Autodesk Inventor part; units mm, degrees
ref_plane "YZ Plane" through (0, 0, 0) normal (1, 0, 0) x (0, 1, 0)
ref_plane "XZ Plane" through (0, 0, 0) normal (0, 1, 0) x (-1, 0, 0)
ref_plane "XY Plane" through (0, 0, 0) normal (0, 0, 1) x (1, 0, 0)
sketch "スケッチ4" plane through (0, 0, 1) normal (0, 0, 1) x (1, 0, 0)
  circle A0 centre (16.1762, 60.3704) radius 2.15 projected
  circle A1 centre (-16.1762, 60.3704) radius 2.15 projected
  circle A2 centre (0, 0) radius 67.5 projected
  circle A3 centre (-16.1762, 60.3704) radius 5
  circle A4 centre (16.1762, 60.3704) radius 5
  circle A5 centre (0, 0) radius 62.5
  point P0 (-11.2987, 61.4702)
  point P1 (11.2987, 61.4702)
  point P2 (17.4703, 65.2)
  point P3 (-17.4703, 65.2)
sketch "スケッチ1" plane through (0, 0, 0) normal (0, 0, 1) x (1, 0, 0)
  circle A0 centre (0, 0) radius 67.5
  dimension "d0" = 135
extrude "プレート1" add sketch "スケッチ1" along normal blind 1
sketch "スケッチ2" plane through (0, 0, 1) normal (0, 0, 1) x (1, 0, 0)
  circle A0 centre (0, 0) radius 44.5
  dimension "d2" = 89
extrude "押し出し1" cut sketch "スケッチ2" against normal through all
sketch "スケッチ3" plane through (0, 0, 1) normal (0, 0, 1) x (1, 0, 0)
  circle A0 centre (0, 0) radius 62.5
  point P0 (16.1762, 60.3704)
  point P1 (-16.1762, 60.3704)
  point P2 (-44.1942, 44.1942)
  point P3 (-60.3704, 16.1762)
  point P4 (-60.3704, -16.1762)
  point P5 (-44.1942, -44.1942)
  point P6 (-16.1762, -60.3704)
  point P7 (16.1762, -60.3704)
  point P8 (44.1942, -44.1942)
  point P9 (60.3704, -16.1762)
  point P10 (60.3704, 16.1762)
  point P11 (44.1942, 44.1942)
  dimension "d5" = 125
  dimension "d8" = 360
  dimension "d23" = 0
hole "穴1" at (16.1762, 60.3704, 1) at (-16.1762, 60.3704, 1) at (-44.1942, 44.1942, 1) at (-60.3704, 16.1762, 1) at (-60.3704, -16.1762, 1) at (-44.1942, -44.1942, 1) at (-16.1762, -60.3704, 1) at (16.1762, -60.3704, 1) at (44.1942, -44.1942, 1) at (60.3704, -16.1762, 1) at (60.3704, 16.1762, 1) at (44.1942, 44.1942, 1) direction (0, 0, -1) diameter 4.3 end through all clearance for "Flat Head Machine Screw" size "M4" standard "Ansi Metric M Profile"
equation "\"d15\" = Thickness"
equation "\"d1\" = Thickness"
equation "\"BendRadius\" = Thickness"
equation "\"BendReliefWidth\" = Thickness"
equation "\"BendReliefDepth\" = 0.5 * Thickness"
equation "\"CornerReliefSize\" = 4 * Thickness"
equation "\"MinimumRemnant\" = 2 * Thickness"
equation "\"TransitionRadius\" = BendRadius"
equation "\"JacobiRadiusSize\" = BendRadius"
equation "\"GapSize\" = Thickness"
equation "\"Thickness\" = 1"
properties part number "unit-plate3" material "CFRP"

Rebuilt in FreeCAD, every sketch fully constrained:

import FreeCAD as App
import Part
import Sketcher
Q = App.Units.Quantity

doc = App.newDocument("Part")
params = doc.addObject("Spreadsheet::Sheet", "Params")
for row, (alias, value) in enumerate([
    ("sketch1_diameter", "135 mm"),
    ("pad1_length", "1 mm"),
    ("sketch2_diameter", "89 mm"),
    ("sketch3_diameter", "4.3 mm"),
    ("hole_diameter", "4.3 mm"),
], start=1):
    params.set(f"A{row}", alias)
    params.set(f"B{row}", "=" + value)
    params.setAlias(f"B{row}", alias)

body = doc.addObject("PartDesign::Body", "Body")

sketch1 = body.newObject("Sketcher::SketchObject", "Sketch")
sketch1.AttachmentSupport = (doc.getObject("XY_Plane"), [""])
sketch1.MapMode = "FlatFace"
sketch1.addGeometry(Part.Circle(App.Vector(0, 0, 0), App.Vector(0, 0, 1), 68), False)
sketch1.addConstraint([
    Sketcher.Constraint("Coincident", 0, 3, -1, 1),
    Sketcher.Constraint("Diameter", 0, Q("135 mm")),
])
sketch1.setExpression("Constraints[1]", "Params.sketch1_diameter")
pad1 = body.newObject("PartDesign::Pad", "Pad")
pad1.Profile = sketch1
pad1.setExpression("Length", "Params.pad1_length")

sketch2 = body.newObject("Sketcher::SketchObject", "Sketch001")
sketch2.AttachmentSupport = (doc.getObject("XY_Plane"), [""])
sketch2.MapMode = "FlatFace"
sketch2.AttachmentOffset = App.Placement(App.Vector(0, 0, 1), App.Rotation())
sketch2.addGeometry(Part.Circle(App.Vector(0, 0, 0), App.Vector(0, 0, 1), 44), False)
sketch2.addConstraint([
    Sketcher.Constraint("Coincident", 0, 3, -1, 1),
    Sketcher.Constraint("Diameter", 0, Q("89 mm")),
])
sketch2.setExpression("Constraints[1]", "Params.sketch2_diameter")
pocket1 = body.newObject("PartDesign::Pocket", "Pocket")
pocket1.Profile = sketch2
pocket1.Type = "ThroughAll"

sketch3 = body.newObject("Sketcher::SketchObject", "Sketch002")
sketch3.AttachmentSupport = (doc.getObject("XY_Plane"), [""])
sketch3.MapMode = "FlatFace"
sketch3.AttachmentOffset = App.Placement(App.Vector(0, 0, 1), App.Rotation())
sketch3.addGeometry([
    Part.Circle(App.Vector(16.2, 60.4, 0), App.Vector(0, 0, 1), 2.1),
    Part.Circle(App.Vector(-16.2, 60.4, 0), App.Vector(0, 0, 1), 2.1),
    Part.Circle(App.Vector(-44.2, 44.2, 0), App.Vector(0, 0, 1), 2.1),
    Part.Circle(App.Vector(-60.4, 16.2, 0), App.Vector(0, 0, 1), 2.1),
    Part.Circle(App.Vector(-60.4, -16.2, 0), App.Vector(0, 0, 1), 2.1),
    Part.Circle(App.Vector(-44.2, -44.2, 0), App.Vector(0, 0, 1), 2.1),
    Part.Circle(App.Vector(-16.2, -60.4, 0), App.Vector(0, 0, 1), 2.1),
    Part.Circle(App.Vector(16.2, -60.4, 0), App.Vector(0, 0, 1), 2.1),
    Part.Circle(App.Vector(44.2, -44.2, 0), App.Vector(0, 0, 1), 2.1),
    Part.Circle(App.Vector(60.4, -16.2, 0), App.Vector(0, 0, 1), 2.1),
    Part.Circle(App.Vector(60.4, 16.2, 0), App.Vector(0, 0, 1), 2.1),
    Part.Circle(App.Vector(44.2, 44.2, 0), App.Vector(0, 0, 1), 2.1),
], False)
sketch3.addConstraint([
    Sketcher.Constraint("Equal", 0, 1),
    Sketcher.Constraint("Equal", 1, 2),
    Sketcher.Constraint("Equal", 2, 3),
    Sketcher.Constraint("Equal", 3, 4),
    Sketcher.Constraint("Equal", 4, 5),
    Sketcher.Constraint("Equal", 5, 6),
    Sketcher.Constraint("Equal", 6, 7),
    Sketcher.Constraint("Equal", 7, 8),
    Sketcher.Constraint("Equal", 8, 9),
    Sketcher.Constraint("Equal", 9, 10),
    Sketcher.Constraint("Equal", 10, 11),
    Sketcher.Constraint("Symmetric", 0, 3, 6, 3, -1, 1),
    Sketcher.Constraint("Symmetric", 1, 3, 7, 3, -1, 1),
    Sketcher.Constraint("Symmetric", 2, 3, 8, 3, -1, 1),
    Sketcher.Constraint("Symmetric", 3, 3, 9, 3, -1, 1),
    Sketcher.Constraint("Symmetric", 4, 3, 10, 3, -1, 1),
    Sketcher.Constraint("Symmetric", 5, 3, 11, 3, -1, 1),
    Sketcher.Constraint("Symmetric", 0, 3, 1, 3, -2),
    Sketcher.Constraint("Symmetric", 5, 3, 8, 3, -2),
    Sketcher.Constraint("Symmetric", 4, 3, 9, 3, -2),
    Sketcher.Constraint("Diameter", 0, Q("4.3 mm")),
    Sketcher.Constraint("DistanceX", 2, 3, 1, 3, Q("28.018 mm")),
    Sketcher.Constraint("DistanceY", 3, 3, 2, 3, Q("28.018 mm")),
    Sketcher.Constraint("DistanceX", -1, 1, 0, 3, Q("16.1762 mm")),
    Sketcher.Constraint("DistanceY", -1, 1, 0, 3, Q("60.3704 mm")),
    Sketcher.Constraint("DistanceY", -1, 1, 2, 3, Q("44.1942 mm")),
    Sketcher.Constraint("DistanceX", 3, 3, -1, 1, Q("60.3704 mm")),
])
sketch3.setExpression("Constraints[20]", "Params.sketch3_diameter")
doc.recompute()
hole = body.newObject("PartDesign::Hole", "Hole")
hole.Profile = sketch3
hole.ThreadType = "None"
hole.setExpression("Diameter", "Params.hole_diameter")
hole.DepthType = "ThroughAll"

doc.recompute()
